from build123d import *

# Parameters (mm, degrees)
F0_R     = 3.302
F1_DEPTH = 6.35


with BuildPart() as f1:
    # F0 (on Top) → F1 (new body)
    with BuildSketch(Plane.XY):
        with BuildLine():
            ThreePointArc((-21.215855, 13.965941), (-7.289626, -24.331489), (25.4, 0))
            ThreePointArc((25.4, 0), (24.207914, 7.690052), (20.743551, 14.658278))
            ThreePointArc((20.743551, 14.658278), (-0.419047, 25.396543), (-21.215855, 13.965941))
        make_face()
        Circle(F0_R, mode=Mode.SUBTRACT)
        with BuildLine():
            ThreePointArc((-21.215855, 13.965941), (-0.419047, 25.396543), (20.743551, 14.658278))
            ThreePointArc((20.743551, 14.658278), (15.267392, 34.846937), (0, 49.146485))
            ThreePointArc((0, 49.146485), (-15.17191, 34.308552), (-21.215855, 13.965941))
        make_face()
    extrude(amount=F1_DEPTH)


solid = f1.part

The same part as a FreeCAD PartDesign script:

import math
import FreeCAD as App
import Part
import Sketcher

V = App.Vector
Q = App.Units.Quantity

doc = App.newDocument("Part")
body = doc.addObject("PartDesign::Body", "Body")

# Sketch on XY plane
sketch1 = body.newObject("Sketcher::SketchObject", "Sketch")
sketch1.AttachmentSupport = (doc.getObject("XY_Plane"), [""])
sketch1.MapMode = "FlatFace"
sketch1.addGeometry([
    Part.ArcOfCircle(Part.Circle(V(0, 0, 0), V(0, 0, 1), 25.4), math.radians(147), math.radians(360)),  # 0
    Part.ArcOfCircle(Part.Circle(V(0, 0, 0), V(0, 0, 1), 25.4), math.radians(0), math.radians(35)),  # 1
    Part.ArcOfCircle(Part.Circle(V(-17.6, 15.1, 0), V(0, 0, 1), 38.3), math.radians(-1), math.radians(63)),  # 2
    Part.ArcOfCircle(Part.Circle(V(21, 12.5, 0), V(0, 0, 1), 42.2), math.radians(120), math.radians(178)),  # 3
    Part.Circle(V(0, 0, 0), V(0, 0, 1), 3.3),  # 4
], False)
sketch1.addConstraint([
    Sketcher.Constraint("Tangent", 0, 2, 1, 1),
    Sketcher.Constraint("Coincident", 1, 2, 2, 1),
    Sketcher.Constraint("Coincident", 2, 2, 3, 1),
    Sketcher.Constraint("Coincident", 3, 2, 0, 1),
    Sketcher.Constraint("Coincident", 0, 3, -1, 1),
    Sketcher.Constraint("Coincident", 4, 3, -1, 1),
    Sketcher.Constraint("PointOnObject", 0, 2, -1),
    Sketcher.Constraint("PointOnObject", 2, 2, -2),
    Sketcher.Constraint("Radius", 0, Q("1 in")),
    Sketcher.Constraint("Radius", 1, Q("1.0000002 in")),
    Sketcher.Constraint("Diameter", 4, Q("0.26 in")),
    Sketcher.Constraint("Radius", 2, Q("38.296546 mm")),
    Sketcher.Constraint("Radius", 3, Q("42.249492 mm")),
    Sketcher.Constraint("DistanceX", 3, 2, 2, 3, Q("3.665502 mm")),
    Sketcher.Constraint("DistanceY", -1, 1, 3, 3, Q("12.490112 mm")),
    Sketcher.Constraint("DistanceX", -1, 1, 1, 2, Q("20.743551 mm")),
])
pad1 = body.newObject("PartDesign::Pad", "Pad")
pad1.Profile = sketch1
pad1.Length = Q("0.25 in")

doc.recompute()
